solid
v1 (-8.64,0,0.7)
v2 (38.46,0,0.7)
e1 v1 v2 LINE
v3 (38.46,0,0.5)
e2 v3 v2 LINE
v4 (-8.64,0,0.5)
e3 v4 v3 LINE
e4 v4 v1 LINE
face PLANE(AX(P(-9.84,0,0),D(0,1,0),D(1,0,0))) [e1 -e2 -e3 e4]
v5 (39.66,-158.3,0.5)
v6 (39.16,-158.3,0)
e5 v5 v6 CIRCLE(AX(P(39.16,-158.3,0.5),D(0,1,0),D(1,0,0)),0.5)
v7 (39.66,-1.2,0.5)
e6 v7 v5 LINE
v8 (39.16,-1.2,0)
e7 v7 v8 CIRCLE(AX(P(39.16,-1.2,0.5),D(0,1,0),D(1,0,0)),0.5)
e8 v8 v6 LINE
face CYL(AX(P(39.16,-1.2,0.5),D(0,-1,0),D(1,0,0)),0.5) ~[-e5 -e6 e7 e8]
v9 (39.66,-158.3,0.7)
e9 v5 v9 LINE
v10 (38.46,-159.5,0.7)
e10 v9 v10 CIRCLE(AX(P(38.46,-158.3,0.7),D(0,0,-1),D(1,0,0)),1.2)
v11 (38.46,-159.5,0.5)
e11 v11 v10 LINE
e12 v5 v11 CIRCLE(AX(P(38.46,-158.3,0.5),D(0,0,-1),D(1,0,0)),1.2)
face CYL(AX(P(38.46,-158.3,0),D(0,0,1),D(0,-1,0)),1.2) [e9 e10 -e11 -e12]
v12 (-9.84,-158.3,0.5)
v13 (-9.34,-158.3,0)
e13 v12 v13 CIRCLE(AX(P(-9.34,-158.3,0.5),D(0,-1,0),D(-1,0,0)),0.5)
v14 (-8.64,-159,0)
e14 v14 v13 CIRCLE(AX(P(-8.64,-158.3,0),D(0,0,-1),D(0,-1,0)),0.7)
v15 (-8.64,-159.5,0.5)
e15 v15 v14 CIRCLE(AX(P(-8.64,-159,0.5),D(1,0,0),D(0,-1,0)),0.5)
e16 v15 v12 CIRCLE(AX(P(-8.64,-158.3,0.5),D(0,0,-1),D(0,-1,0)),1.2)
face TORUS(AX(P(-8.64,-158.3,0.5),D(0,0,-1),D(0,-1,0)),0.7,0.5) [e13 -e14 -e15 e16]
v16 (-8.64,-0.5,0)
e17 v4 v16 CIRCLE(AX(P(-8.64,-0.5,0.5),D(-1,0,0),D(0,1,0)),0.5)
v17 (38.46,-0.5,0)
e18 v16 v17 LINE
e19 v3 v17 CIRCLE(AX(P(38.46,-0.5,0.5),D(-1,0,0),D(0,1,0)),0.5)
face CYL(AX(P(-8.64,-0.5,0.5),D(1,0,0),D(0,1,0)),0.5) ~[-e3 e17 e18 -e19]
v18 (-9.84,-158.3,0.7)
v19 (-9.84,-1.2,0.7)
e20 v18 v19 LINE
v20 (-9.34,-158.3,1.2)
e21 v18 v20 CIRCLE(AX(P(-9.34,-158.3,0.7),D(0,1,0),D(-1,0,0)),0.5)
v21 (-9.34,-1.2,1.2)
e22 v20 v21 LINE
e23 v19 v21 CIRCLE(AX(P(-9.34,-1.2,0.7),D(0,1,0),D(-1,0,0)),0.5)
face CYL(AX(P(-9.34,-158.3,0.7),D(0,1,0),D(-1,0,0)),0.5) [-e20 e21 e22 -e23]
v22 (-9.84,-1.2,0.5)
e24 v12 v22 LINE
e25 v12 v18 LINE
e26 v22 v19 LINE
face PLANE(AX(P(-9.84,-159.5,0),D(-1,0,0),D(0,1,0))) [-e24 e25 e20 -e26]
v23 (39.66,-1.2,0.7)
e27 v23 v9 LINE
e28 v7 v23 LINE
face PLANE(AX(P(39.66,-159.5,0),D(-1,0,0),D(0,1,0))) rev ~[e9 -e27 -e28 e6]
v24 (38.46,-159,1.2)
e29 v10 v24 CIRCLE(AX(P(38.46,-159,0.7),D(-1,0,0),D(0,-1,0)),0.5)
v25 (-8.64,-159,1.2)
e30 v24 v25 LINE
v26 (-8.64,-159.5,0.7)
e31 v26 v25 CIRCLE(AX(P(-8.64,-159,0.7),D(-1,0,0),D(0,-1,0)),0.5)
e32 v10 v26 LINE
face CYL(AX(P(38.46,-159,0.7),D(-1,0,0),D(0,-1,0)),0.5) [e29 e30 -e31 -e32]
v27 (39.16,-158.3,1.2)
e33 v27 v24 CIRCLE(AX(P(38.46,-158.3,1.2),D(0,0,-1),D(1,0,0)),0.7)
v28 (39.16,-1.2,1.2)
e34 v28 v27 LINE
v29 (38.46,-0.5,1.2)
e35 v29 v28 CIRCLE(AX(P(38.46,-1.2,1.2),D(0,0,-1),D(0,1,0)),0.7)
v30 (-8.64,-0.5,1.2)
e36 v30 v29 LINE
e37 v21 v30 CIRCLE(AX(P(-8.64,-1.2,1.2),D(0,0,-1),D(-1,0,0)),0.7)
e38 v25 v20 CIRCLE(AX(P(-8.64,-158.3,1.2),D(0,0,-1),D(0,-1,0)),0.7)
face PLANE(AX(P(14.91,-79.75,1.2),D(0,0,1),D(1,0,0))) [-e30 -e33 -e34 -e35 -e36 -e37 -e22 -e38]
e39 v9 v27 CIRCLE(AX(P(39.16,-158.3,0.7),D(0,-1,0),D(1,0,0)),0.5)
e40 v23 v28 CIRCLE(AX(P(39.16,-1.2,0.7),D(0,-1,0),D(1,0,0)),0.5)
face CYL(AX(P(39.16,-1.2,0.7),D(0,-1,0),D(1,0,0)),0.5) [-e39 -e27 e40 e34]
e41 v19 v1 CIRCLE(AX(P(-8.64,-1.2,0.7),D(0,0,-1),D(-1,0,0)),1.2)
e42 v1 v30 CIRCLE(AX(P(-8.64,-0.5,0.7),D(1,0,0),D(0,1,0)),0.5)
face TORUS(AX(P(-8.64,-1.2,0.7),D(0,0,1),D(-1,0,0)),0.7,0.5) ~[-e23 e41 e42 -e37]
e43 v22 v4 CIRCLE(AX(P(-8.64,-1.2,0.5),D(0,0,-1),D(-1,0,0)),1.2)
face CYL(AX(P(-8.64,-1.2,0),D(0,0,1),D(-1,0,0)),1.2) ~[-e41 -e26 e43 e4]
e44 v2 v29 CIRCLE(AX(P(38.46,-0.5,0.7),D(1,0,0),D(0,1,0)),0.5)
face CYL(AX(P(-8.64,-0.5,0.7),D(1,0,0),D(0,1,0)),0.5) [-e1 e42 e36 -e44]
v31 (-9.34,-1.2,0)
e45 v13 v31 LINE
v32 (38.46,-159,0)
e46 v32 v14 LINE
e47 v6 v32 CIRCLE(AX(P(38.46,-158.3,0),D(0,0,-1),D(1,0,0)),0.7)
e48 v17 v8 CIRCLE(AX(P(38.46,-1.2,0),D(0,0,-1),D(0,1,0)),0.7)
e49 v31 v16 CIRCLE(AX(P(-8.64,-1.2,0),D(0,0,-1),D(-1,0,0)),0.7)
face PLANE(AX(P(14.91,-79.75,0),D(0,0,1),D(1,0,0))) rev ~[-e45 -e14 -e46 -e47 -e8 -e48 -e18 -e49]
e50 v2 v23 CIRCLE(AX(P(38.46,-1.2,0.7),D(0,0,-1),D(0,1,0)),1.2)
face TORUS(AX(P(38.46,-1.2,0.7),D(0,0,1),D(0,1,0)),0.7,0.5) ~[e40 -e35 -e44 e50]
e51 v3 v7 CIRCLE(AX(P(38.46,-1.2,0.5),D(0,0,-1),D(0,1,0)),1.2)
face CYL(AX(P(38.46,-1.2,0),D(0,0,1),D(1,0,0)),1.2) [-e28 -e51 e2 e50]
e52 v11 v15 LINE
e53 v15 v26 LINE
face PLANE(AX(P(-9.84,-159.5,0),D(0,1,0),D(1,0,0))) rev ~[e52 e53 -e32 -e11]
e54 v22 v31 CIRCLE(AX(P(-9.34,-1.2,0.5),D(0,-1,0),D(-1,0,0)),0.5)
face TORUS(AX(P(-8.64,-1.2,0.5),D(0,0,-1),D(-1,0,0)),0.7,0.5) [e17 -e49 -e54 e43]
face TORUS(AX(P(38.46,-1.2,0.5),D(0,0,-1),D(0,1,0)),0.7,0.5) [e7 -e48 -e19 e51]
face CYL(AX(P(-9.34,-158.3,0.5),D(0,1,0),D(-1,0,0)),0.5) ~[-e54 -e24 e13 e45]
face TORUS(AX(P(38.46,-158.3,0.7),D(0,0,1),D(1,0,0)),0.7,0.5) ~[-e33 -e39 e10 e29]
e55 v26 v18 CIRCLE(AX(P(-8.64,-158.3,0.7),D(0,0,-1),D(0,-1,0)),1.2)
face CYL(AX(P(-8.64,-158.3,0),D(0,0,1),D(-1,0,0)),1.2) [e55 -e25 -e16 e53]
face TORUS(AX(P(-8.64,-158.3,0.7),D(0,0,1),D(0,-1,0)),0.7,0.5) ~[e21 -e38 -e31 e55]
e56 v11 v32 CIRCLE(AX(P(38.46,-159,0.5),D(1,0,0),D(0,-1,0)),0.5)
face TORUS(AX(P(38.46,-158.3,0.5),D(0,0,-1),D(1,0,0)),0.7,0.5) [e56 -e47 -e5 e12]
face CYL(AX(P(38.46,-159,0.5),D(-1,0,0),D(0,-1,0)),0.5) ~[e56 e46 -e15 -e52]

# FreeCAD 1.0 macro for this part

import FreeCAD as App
import Part
import Sketcher
from FreeCAD import Vector
Q = App.Units.Quantity


def edges_at(feature, points):
    """Names of the edges that pass closest to the given points."""
    edges = feature.Shape.Edges
    near = lambda p: min(range(len(edges)), key=lambda i: edges[i].distToShape(Part.Vertex(*p))[0])
    return sorted({f"Edge{near(p) + 1}" for p in points})


def add_polygon(sketch, points):
    """Adds a closed chain of lines whose ends are joined by coincident constraints."""
    first, n = sketch.GeometryCount, len(points)
    for a, b in zip(points, points[1:] + points[:1]):
        sketch.addGeometry(Part.LineSegment(App.Vector(*a, 0), App.Vector(*b, 0)), False)
    for i in range(n):
        sketch.addConstraint(Sketcher.Constraint("Coincident", first + i, 2, first + (i + 1) % n, 1))

doc = App.newDocument("Part")
body = doc.addObject("PartDesign::Body", "Body")

sketch1 = doc.addObject("Sketcher::SketchObject", "Sketch")
body.addObject(sketch1)
sketch1.AttachmentSupport = (doc.XY_Plane, [""])
sketch1.MapMode = "FlatFace"
add_polygon(sketch1, [(-10, 0), (-10, -160), (40, -160), (40, 0)])
sketch1.addConstraint([
    Sketcher.Constraint("Vertical", 0),
    Sketcher.Constraint("Horizontal", 1),
    Sketcher.Constraint("Vertical", 2),
    Sketcher.Constraint("Horizontal", 3),
    Sketcher.Constraint("PointOnObject", 2, 2, -1),
    Sketcher.Constraint("DistanceX", 1, 1, 1, 2, Q("49.5 mm")),
    Sketcher.Constraint("DistanceY", 0, 2, 0, 1, Q("159.5 mm")),
    Sketcher.Constraint("DistanceX", 0, 2, -1, 1, Q("9.84 mm")),
])
pad1 = doc.addObject("PartDesign::Pad", "Pad")
body.addObject(pad1)
pad1.Profile = sketch1
pad1.Length = 1.2
doc.recompute()

fillet = doc.addObject("PartDesign::Fillet", "Fillet")
body.addObject(fillet)
fillet.Base = (pad1, edges_at(pad1, [
    (39.66, -159.5, 0.6),
    (39.66, 0, 0.6),
    (-9.84, 0, 0.6),
    (-9.84, -159.5, 0.6),
]))
fillet.Radius = 1.2
doc.recompute()

fillet2 = doc.addObject("PartDesign::Fillet", "Fillet001")
body.addObject(fillet2)
fillet2.Base = (fillet, edges_at(fillet, [(-9.84, -79.75, 0)]))
fillet2.Radius = 0.5
doc.recompute()

fillet3 = doc.addObject("PartDesign::Fillet", "Fillet002")
body.addObject(fillet3)
fillet3.Base = (fillet2, edges_at(fillet2, [(-9.84, -79.75, 1.2)]))
fillet3.Radius = 0.5

doc.recompute()
